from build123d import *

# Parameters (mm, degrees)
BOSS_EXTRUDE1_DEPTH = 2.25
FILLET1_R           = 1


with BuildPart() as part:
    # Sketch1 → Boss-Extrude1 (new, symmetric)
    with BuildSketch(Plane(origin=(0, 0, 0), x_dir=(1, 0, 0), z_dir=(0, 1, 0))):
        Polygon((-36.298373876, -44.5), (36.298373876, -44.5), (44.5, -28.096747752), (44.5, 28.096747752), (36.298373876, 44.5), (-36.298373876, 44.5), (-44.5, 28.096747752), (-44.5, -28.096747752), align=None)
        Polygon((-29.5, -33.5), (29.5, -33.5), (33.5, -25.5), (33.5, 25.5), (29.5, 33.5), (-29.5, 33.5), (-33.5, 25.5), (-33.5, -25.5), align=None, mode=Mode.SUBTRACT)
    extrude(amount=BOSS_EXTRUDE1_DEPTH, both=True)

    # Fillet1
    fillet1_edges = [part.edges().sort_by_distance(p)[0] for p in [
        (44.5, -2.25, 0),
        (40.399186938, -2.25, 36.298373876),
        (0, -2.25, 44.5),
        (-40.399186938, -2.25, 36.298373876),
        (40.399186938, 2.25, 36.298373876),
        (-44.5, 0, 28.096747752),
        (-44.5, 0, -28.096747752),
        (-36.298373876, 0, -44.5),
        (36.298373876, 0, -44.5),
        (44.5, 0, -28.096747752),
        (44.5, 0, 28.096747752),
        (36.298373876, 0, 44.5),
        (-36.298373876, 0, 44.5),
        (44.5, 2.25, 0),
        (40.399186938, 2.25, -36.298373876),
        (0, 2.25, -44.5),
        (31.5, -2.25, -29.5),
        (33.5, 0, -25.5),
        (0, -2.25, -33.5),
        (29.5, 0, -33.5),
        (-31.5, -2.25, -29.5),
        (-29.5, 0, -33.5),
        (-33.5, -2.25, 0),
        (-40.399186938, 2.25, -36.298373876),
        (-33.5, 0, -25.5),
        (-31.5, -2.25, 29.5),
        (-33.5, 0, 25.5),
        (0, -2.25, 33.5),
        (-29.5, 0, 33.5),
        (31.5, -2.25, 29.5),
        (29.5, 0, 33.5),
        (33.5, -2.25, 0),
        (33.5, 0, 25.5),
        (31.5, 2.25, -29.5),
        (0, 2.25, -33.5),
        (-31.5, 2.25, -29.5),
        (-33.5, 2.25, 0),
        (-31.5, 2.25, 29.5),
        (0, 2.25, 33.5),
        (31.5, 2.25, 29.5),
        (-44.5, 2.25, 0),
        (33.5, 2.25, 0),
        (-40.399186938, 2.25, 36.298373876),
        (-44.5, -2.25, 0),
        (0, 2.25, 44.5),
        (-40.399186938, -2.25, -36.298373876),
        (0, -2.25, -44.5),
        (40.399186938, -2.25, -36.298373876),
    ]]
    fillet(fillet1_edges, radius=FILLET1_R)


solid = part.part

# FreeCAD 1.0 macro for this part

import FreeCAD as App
import Part
import Sketcher

V = App.Vector
Q = App.Units.Quantity

doc = App.newDocument("Part")
params = doc.addObject("Spreadsheet::Sheet", "Params")
for row, (alias, value) in enumerate([
    ("sketch1_width", "59 mm"),
    ("sketch1_height", "51 mm"),
    ("pad1_length", "4.5 mm"),
    ("fillet_radius", "1 mm"),
], start=1):
    params.set(f"A{row}", alias)
    params.set(f"B{row}", "=" + value)
    params.setAlias(f"B{row}", alias)

body = doc.addObject("PartDesign::Body", "Body")

# Sketch on XZ plane
sketch1 = body.newObject("Sketcher::SketchObject", "Sketch")
sketch1.AttachmentSupport = (doc.getObject("XZ_Plane"), [""])
sketch1.MapMode = "FlatFace"
sketch1.addGeometry([
    Part.LineSegment(V(-36, 44, 0), V(36, 44, 0)),  # 0
    Part.LineSegment(V(36, 44, 0), V(44, 28, 0)),  # 1
    Part.LineSegment(V(44, 28, 0), V(44, -28, 0)),  # 2
    Part.LineSegment(V(44, -28, 0), V(36, -44, 0)),  # 3
    Part.LineSegment(V(36, -44, 0), V(-36, -44, 0)),  # 4
    Part.LineSegment(V(-36, -44, 0), V(-44, -28, 0)),  # 5
    Part.LineSegment(V(-44, -28, 0), V(-44, 28, 0)),  # 6
    Part.LineSegment(V(-44, 28, 0), V(-36, 44, 0)),  # 7
    Part.LineSegment(V(30, 34, 0), V(-30, 34, 0)),  # 8
    Part.LineSegment(V(-30, 34, 0), V(-34, 26, 0)),  # 9
    Part.LineSegment(V(-34, 26, 0), V(-34, -26, 0)),  # 10
    Part.LineSegment(V(-34, -26, 0), V(-30, -34, 0)),  # 11
    Part.LineSegment(V(-30, -34, 0), V(30, -34, 0)),  # 12
    Part.LineSegment(V(30, -34, 0), V(34, -26, 0)),  # 13
    Part.LineSegment(V(34, -26, 0), V(34, 26, 0)),  # 14
    Part.LineSegment(V(34, 26, 0), V(30, 34, 0)),  # 15
], False)
sketch1.addConstraint([
    Sketcher.Constraint("Coincident", 0, 2, 1, 1),
    Sketcher.Constraint("Coincident", 1, 2, 2, 1),
    Sketcher.Constraint("Coincident", 2, 2, 3, 1),
    Sketcher.Constraint("Coincident", 3, 2, 4, 1),
    Sketcher.Constraint("Coincident", 4, 2, 5, 1),
    Sketcher.Constraint("Coincident", 5, 2, 6, 1),
    Sketcher.Constraint("Coincident", 6, 2, 7, 1),
    Sketcher.Constraint("Coincident", 7, 2, 0, 1),
    Sketcher.Constraint("Coincident", 8, 2, 9, 1),
    Sketcher.Constraint("Coincident", 9, 2, 10, 1),
    Sketcher.Constraint("Coincident", 10, 2, 11, 1),
    Sketcher.Constraint("Coincident", 11, 2, 12, 1),
    Sketcher.Constraint("Coincident", 12, 2, 13, 1),
    Sketcher.Constraint("Coincident", 13, 2, 14, 1),
    Sketcher.Constraint("Coincident", 14, 2, 15, 1),
    Sketcher.Constraint("Coincident", 15, 2, 8, 1),
    Sketcher.Constraint("Horizontal", 0),
    Sketcher.Constraint("Vertical", 2),
    Sketcher.Constraint("Horizontal", 4),
    Sketcher.Constraint("Vertical", 6),
    Sketcher.Constraint("Horizontal", 8),
    Sketcher.Constraint("Vertical", 10),
    Sketcher.Constraint("Horizontal", 12),
    Sketcher.Constraint("Vertical", 14),
    Sketcher.Constraint("Symmetric", 0, 2, 4, 2, -1, 1),
    Sketcher.Constraint("Symmetric", 1, 2, 5, 2, -1, 1),
    Sketcher.Constraint("Symmetric", 8, 2, 12, 2, -1, 1),
    Sketcher.Constraint("Symmetric", 9, 2, 13, 2, -1, 1),
    Sketcher.Constraint("Parallel", 3, 7),
    Sketcher.Constraint("Parallel", 7, 9),
    Sketcher.Constraint("Parallel", 5, 11),
    Sketcher.Constraint("Parallel", 11, 15),
    Sketcher.Constraint("Horizontal", 2, 2, 5, 2),
    Sketcher.Constraint("Horizontal", 1, 2, 6, 2),
    Sketcher.Constraint("Horizontal", 10, 2, 13, 2),
    Sketcher.Constraint("Horizontal", 9, 2, 14, 2),
    Sketcher.Constraint("Vertical", 0, 2, 3, 2),
    Sketcher.Constraint("DistanceX", 8, 2, 8, 1, Q("59 mm")),
    Sketcher.Constraint("DistanceY", 10, 2, 10, 1, Q("51 mm")),
    Sketcher.Constraint("DistanceY", 3, 2, 0, 2, Q("89 mm")),
    Sketcher.Constraint("DistanceX", 5, 2, 2, 2, Q("89 mm")),
    Sketcher.Constraint("DistanceY", 8, 2, 7, 2, Q("11 mm")),
    Sketcher.Constraint("DistanceX", 9, 2, 8, 2, Q("4 mm")),
    Sketcher.Constraint("DistanceX", 0, 1, 0, 2, Q("72.596748 mm")),
])
sketch1.setExpression("Constraints[37]", "Params.sketch1_width")
sketch1.setExpression("Constraints[38]", "Params.sketch1_height")
pad1 = body.newObject("PartDesign::Pad", "Pad")
pad1.Profile = sketch1
pad1.setExpression("Length", "Params.pad1_length")
pad1.Midplane = True
doc.recompute()

fillet = body.newObject("PartDesign::Fillet", "Fillet")
fillet.Base = (pad1, ["Edge1"])
fillet.UseAllEdges = True
fillet.setExpression("Radius", "Params.fillet_radius")

doc.recompute()
